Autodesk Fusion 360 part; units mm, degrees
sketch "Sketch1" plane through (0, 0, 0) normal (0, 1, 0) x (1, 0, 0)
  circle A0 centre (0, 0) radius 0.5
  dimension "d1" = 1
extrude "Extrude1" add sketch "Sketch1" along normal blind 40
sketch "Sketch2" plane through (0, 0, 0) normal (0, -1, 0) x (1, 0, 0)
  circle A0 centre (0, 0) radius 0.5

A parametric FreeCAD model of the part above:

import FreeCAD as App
import Part
import Sketcher
Q = App.Units.Quantity

doc = App.newDocument("Part")
body = doc.addObject("PartDesign::Body", "Body")

sketch1 = body.newObject("Sketcher::SketchObject", "Sketch")
sketch1.AttachmentSupport = (doc.getObject("XZ_Plane"), [""])
sketch1.MapMode = "FlatFace"
sketch1.addGeometry(Part.Circle(App.Vector(0, 0, 0), App.Vector(0, 0, 1), 0.5), False)
sketch1.addConstraint(Sketcher.Constraint("Coincident", 0, 3, -1, 1))
sketch1.addConstraint(Sketcher.Constraint("Diameter", 0, Q("1 mm")))
pad1 = body.newObject("PartDesign::Pad", "Pad")
pad1.Profile = sketch1
pad1.Length = 40
pad1.Reversed = True

doc.recompute()
